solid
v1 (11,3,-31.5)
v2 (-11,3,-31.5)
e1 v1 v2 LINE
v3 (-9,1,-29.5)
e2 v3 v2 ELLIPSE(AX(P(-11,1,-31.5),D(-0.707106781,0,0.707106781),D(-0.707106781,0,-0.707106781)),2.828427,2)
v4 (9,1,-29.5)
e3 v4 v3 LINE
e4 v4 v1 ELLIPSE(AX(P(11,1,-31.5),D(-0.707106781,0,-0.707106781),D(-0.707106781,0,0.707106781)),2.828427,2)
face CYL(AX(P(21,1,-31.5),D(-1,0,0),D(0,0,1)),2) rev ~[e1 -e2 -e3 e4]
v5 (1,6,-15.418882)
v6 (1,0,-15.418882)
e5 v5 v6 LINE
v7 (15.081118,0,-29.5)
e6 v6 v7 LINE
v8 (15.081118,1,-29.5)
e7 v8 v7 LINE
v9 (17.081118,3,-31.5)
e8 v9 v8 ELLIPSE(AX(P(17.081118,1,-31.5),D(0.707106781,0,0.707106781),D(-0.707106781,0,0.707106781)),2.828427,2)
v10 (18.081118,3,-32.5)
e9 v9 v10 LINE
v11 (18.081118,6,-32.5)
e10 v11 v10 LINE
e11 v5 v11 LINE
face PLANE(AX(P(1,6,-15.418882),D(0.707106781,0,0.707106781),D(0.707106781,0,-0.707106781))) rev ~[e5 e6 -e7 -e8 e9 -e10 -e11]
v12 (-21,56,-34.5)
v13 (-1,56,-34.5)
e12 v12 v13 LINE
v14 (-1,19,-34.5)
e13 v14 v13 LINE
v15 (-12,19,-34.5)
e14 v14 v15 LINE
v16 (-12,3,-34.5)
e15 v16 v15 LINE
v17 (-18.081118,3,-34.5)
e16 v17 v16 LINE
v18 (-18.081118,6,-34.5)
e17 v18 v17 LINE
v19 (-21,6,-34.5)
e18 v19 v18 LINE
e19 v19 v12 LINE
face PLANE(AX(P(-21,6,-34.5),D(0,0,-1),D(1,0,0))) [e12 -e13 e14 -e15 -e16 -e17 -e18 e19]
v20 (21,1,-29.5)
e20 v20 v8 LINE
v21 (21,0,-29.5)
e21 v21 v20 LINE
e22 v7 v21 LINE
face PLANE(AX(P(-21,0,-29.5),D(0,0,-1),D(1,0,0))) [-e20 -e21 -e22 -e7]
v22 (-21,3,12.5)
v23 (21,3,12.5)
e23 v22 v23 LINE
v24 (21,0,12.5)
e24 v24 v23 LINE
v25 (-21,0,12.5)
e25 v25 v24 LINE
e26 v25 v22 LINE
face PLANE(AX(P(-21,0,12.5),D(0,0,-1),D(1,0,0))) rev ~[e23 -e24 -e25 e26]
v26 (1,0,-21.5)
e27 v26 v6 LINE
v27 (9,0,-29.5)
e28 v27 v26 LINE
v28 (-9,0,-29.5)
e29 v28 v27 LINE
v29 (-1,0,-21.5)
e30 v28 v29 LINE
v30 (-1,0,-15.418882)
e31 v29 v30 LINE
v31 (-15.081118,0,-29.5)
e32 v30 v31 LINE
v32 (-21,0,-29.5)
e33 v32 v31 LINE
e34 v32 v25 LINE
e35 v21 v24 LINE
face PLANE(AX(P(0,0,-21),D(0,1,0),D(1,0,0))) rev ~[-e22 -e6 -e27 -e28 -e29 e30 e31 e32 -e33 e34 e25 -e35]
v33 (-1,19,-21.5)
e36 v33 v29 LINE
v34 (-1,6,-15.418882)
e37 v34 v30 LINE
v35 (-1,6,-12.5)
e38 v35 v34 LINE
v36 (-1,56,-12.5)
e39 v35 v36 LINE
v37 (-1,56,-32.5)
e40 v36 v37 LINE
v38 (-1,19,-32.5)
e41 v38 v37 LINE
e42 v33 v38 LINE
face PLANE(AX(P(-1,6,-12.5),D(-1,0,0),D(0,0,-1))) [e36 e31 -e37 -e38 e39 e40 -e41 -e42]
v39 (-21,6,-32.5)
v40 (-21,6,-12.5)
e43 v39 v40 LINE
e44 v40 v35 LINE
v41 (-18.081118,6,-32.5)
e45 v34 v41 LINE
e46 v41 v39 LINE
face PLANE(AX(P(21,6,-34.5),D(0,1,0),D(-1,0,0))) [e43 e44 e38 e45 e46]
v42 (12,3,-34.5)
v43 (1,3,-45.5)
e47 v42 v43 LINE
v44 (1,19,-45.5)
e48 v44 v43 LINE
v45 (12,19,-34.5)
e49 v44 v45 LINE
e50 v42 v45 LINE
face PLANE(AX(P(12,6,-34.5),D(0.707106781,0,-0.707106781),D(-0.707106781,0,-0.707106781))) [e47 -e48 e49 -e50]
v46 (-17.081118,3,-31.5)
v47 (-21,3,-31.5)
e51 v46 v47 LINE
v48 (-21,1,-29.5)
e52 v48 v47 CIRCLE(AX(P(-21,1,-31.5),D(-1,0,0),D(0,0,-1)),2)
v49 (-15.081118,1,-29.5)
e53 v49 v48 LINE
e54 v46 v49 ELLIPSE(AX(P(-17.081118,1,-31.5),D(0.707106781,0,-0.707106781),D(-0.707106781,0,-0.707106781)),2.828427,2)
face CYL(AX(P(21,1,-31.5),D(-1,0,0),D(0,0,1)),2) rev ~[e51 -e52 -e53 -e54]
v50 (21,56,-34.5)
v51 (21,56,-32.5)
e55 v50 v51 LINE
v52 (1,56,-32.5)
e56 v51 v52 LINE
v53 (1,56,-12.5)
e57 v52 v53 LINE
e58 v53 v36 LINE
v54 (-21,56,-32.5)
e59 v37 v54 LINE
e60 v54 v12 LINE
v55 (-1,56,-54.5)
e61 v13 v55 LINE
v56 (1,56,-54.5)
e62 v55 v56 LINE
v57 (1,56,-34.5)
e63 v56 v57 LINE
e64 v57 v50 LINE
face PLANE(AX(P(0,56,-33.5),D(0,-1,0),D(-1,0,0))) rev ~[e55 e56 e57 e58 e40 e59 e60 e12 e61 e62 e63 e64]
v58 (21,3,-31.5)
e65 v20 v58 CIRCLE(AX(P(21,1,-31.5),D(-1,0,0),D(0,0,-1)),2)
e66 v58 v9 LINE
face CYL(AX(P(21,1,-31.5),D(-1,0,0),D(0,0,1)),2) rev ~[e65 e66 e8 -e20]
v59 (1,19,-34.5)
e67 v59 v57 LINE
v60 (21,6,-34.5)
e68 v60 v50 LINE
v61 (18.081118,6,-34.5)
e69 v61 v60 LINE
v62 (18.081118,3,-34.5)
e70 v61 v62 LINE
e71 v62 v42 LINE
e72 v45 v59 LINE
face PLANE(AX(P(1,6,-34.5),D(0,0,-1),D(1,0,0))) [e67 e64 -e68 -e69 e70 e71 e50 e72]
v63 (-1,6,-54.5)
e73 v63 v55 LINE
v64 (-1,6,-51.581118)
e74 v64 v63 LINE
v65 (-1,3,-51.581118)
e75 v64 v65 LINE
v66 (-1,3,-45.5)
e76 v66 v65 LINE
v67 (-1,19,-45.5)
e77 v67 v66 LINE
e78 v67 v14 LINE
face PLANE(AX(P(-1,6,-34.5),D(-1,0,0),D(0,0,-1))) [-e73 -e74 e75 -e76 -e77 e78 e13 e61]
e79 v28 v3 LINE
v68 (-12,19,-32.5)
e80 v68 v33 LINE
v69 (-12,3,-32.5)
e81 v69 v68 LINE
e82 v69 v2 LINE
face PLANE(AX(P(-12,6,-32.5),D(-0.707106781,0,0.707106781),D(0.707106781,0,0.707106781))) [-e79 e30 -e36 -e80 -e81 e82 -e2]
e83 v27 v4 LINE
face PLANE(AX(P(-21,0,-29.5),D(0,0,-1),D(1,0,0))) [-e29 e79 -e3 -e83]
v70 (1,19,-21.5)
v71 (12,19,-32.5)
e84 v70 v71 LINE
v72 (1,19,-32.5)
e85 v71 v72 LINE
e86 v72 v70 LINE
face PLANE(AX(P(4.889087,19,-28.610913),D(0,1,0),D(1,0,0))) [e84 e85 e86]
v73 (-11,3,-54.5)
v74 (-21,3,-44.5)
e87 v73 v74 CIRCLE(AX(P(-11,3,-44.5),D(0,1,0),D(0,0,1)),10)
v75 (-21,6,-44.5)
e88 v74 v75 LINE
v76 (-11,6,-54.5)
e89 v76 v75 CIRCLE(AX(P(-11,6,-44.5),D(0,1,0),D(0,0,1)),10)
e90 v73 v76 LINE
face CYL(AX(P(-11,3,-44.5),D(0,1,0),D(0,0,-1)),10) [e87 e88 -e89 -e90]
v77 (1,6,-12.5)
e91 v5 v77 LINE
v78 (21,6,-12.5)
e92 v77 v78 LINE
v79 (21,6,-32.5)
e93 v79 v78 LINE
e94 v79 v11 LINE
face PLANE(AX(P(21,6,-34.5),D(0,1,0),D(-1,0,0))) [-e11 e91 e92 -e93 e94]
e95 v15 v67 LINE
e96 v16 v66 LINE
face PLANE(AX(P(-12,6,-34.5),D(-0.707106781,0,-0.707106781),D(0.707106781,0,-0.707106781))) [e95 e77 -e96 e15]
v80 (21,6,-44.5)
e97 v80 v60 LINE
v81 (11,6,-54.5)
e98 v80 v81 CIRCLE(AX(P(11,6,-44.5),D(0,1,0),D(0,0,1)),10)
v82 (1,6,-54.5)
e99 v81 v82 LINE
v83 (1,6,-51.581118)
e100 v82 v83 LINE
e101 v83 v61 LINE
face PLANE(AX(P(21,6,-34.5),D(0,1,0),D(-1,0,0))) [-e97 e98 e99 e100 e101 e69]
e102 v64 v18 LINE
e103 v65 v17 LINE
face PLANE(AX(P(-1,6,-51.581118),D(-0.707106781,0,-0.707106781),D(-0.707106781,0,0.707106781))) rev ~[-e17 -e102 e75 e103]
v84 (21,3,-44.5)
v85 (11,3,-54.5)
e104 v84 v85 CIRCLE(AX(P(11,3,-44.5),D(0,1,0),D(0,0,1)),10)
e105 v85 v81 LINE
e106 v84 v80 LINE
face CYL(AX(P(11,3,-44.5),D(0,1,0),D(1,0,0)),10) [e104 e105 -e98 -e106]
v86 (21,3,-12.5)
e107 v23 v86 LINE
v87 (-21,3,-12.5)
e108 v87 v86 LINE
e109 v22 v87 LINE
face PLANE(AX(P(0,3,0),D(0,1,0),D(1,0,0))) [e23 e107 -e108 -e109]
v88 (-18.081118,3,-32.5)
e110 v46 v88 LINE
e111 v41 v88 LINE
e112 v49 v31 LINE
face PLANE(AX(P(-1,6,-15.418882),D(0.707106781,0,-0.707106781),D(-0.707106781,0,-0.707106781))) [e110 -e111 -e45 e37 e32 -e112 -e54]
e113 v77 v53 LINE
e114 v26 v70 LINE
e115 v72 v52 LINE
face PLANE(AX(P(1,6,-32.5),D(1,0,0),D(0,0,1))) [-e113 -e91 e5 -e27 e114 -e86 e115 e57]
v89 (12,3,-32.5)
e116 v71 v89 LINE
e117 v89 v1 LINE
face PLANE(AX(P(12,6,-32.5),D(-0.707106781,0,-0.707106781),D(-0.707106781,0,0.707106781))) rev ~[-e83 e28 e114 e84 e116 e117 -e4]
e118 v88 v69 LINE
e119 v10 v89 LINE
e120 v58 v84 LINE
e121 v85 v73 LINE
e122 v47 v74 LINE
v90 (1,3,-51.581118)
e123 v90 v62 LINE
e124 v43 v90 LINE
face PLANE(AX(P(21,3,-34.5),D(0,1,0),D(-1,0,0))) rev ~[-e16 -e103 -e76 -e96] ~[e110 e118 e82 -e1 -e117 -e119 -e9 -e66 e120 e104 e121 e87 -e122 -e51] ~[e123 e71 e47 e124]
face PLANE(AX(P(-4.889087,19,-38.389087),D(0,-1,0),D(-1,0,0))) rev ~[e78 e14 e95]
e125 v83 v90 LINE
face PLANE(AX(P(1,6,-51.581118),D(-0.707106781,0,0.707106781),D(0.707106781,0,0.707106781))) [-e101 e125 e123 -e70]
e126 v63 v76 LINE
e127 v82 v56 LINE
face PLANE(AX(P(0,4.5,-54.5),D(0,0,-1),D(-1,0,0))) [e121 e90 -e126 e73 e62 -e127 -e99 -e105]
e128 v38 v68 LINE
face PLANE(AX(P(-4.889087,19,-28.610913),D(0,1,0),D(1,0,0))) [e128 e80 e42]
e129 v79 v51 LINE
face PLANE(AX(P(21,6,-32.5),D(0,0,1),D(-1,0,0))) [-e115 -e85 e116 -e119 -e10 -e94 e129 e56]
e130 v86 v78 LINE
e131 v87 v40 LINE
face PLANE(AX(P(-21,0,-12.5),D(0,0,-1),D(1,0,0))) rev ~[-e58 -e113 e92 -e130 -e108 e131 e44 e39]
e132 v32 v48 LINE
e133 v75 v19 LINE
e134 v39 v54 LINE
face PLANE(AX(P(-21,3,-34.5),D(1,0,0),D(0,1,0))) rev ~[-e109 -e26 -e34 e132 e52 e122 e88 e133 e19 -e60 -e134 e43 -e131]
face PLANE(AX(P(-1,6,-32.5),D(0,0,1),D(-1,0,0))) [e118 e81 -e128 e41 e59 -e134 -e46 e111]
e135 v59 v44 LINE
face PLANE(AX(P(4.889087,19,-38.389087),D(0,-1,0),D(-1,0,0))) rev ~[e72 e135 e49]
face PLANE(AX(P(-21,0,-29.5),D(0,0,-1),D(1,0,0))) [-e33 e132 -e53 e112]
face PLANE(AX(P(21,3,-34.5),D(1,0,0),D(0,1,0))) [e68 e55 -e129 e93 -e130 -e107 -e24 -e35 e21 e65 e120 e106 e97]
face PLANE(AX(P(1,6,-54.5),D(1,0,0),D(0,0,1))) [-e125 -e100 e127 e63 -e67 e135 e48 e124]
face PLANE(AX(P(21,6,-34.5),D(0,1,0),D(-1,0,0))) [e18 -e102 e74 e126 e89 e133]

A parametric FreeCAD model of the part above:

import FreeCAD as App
import Part
import Sketcher
Q = App.Units.Quantity


def edges_at(feature, points):
    """Names of the edges that pass closest to the given points."""
    edges = feature.Shape.Edges
    near = lambda p: min(range(len(edges)), key=lambda i: edges[i].distToShape(Part.Vertex(*p))[0])
    return sorted({f"Edge{near(p) + 1}" for p in points})


def add_polygon(sketch, points):
    """Adds a closed chain of lines whose ends are joined by coincident constraints."""
    first, n = sketch.GeometryCount, len(points)
    for a, b in zip(points, points[1:] + points[:1]):
        sketch.addGeometry(Part.LineSegment(App.Vector(*a, 0), App.Vector(*b, 0)), False)
    for i in range(n):
        sketch.addConstraint(Sketcher.Constraint("Coincident", first + i, 2, first + (i + 1) % n, 1))

doc = App.newDocument("Part")
body = doc.addObject("PartDesign::Body", "Body")

# Sketch on XZ plane
sketch1 = body.newObject("Sketcher::SketchObject", "Sketch")
sketch1.AttachmentSupport = (doc.getObject("XZ_Plane"), [""])
sketch1.MapMode = "FlatFace"
add_polygon(sketch1, [(-21, -12), (-21, 12), (21, 12), (21, -12)])  # lines 0-3
sketch1.addConstraint([
    Sketcher.Constraint("Vertical", 0),
    Sketcher.Constraint("Horizontal", 1),
    Sketcher.Constraint("Vertical", 2),
    Sketcher.Constraint("Horizontal", 3),
    Sketcher.Constraint("Symmetric", 0, 2, 2, 2, -1, 1),
    Sketcher.Constraint("DistanceX", 1, 1, 1, 2, Q("42 mm")),
    Sketcher.Constraint("DistanceY", 0, 1, 0, 2, Q("25 mm")),
])
pad1 = body.newObject("PartDesign::Pad", "Pad")
pad1.Profile = sketch1
pad1.Length = 3
pad1.Reversed = True

# Sketch on XZ plane
sketch2 = body.newObject("Sketcher::SketchObject", "Sketch001")
sketch2.AttachmentSupport = (doc.getObject("XZ_Plane"), [""])
sketch2.MapMode = "FlatFace"
add_polygon(sketch2, [(-21, -30), (-21, -12), (21, -12), (21, -30)])  # lines 0-3
sketch2.addConstraint([
    Sketcher.Constraint("Vertical", 0),
    Sketcher.Constraint("Horizontal", 1),
    Sketcher.Constraint("Vertical", 2),
    Sketcher.Constraint("Horizontal", 3),
    Sketcher.Constraint("DistanceX", 1, 1, 1, 2, Q("42 mm")),
    Sketcher.Constraint("DistanceY", 0, 1, 0, 2, Q("17 mm")),
    Sketcher.Constraint("DistanceX", 0, 2, -1, 1, Q("21 mm")),
    Sketcher.Constraint("DistanceY", 0, 2, -1, 1, Q("12.5 mm")),
])
pad2 = body.newObject("PartDesign::Pad", "Pad001")
pad2.Profile = sketch2
pad2.Length = 6
pad2.Reversed = True

# Sketch on XY plane
sketch3 = body.newObject("Sketcher::SketchObject", "Sketch002")
sketch3.AttachmentSupport = (doc.getObject("XY_Plane"), [""])
sketch3.MapMode = "FlatFace"
sketch3.AttachmentOffset = App.Placement(App.Vector(0, 0, -29.5), App.Rotation())
add_polygon(sketch3, [(21, 6), (21, 3), (-21, 3), (-21, 6)])  # lines 0-3
sketch3.addConstraint([
    Sketcher.Constraint("Vertical", 0),
    Sketcher.Constraint("Horizontal", 1),
    Sketcher.Constraint("Vertical", 2),
    Sketcher.Constraint("Horizontal", 3),
    Sketcher.Constraint("DistanceX", 1, 2, 1, 1, Q("42 mm")),
    Sketcher.Constraint("DistanceY", 0, 2, 0, 1, Q("3 mm")),
    Sketcher.Constraint("DistanceX", -1, 1, 0, 2, Q("21 mm")),
    Sketcher.Constraint("DistanceY", -1, 1, 0, 2, Q("3 mm")),
])
pad3 = body.newObject("PartDesign::Pad", "Pad002")
pad3.Profile = sketch3
pad3.Length = 3
pad3.Reversed = True
doc.recompute()

fillet = body.newObject("PartDesign::Fillet", "Fillet")
fillet.Base = (pad3, edges_at(pad3, [(0, 3, -29.5)]))
fillet.Radius = 2

# Sketch on XY plane
sketch4 = body.newObject("Sketcher::SketchObject", "Sketch003")
sketch4.AttachmentSupport = (doc.getObject("XY_Plane"), [""])
sketch4.MapMode = "FlatFace"
sketch4.AttachmentOffset = App.Placement(App.Vector(0, 0, -32.5), App.Rotation())
add_polygon(sketch4, [(21, 6), (21, 3), (-21, 3), (-21, 6)])  # lines 0-3
sketch4.addConstraint([
    Sketcher.Constraint("Vertical", 0),
    Sketcher.Constraint("Horizontal", 1),
    Sketcher.Constraint("Vertical", 2),
    Sketcher.Constraint("Horizontal", 3),
    Sketcher.Constraint("DistanceX", 1, 2, 1, 1, Q("42 mm")),
    Sketcher.Constraint("DistanceY", 0, 2, 0, 1, Q("3 mm")),
    Sketcher.Constraint("DistanceX", -1, 1, 0, 2, Q("21 mm")),
    Sketcher.Constraint("DistanceY", -1, 1, 0, 2, Q("3 mm")),
])
pad4 = body.newObject("PartDesign::Pad", "Pad003")
pad4.Profile = sketch4
pad4.Length = 2
pad4.Reversed = True

# Sketch on XY plane
sketch5 = body.newObject("Sketcher::SketchObject", "Sketch004")
sketch5.AttachmentSupport = (doc.getObject("XY_Plane"), [""])
sketch5.MapMode = "FlatFace"
sketch5.AttachmentOffset = App.Placement(App.Vector(0, 0, -34.5), App.Rotation())
add_polygon(sketch5, [(21, 6), (21, 3), (-21, 3), (-21, 6)])  # lines 0-3
sketch5.addConstraint([
    Sketcher.Constraint("Vertical", 0),
    Sketcher.Constraint("Horizontal", 1),
    Sketcher.Constraint("Vertical", 2),
    Sketcher.Constraint("Horizontal", 3),
    Sketcher.Constraint("DistanceX", 1, 2, 1, 1, Q("42 mm")),
    Sketcher.Constraint("DistanceY", 0, 2, 0, 1, Q("3 mm")),
    Sketcher.Constraint("DistanceX", -1, 1, 0, 2, Q("21 mm")),
    Sketcher.Constraint("DistanceY", -1, 1, 0, 2, Q("3 mm")),
])
pad5 = body.newObject("PartDesign::Pad", "Pad004")
pad5.Profile = sketch5
pad5.Length = 20
pad5.Reversed = True

# Sketch on XZ plane
sketch6 = body.newObject("Sketcher::SketchObject", "Sketch005")
sketch6.AttachmentSupport = (doc.getObject("XZ_Plane"), [""])
sketch6.MapMode = "FlatFace"
sketch6.AttachmentOffset = App.Placement(App.Vector(0, 0, -6), App.Rotation())
add_polygon(sketch6, [(-1, -34.5), (-21, -34.5), (-21, -32.5), (-1, -32.5), (-1, -12.5), (1, -12.5), (1, -32.5), (21, -32.5), (21, -34.5), (1, -34.5), (1, -54.5), (-1, -54.5)])  # lines 0-11
sketch6.addConstraint([
    Sketcher.Constraint("Horizontal", 0),
    Sketcher.Constraint("Vertical", 1),
    Sketcher.Constraint("Horizontal", 2),
    Sketcher.Constraint("Vertical", 3),
    Sketcher.Constraint("Horizontal", 4),
    Sketcher.Constraint("Vertical", 5),
    Sketcher.Constraint("Horizontal", 6),
    Sketcher.Constraint("Vertical", 7),
    Sketcher.Constraint("Horizontal", 8),
    Sketcher.Constraint("Vertical", 9),
    Sketcher.Constraint("Horizontal", 10),
    Sketcher.Constraint("Vertical", 11),
    Sketcher.Constraint("Symmetric", 2, 2, 5, 2, -2),
    Sketcher.Constraint("Symmetric", 0, 2, 7, 2, -2),
    Sketcher.Constraint("Vertical", 5, 2, 8, 2),
    Sketcher.Constraint("Vertical", 3, 2, 10, 2),
    Sketcher.Constraint("Equal", 10, 1),
    Sketcher.Constraint("Equal", 8, 3),
    Sketcher.Constraint("Equal", 5, 9),
    Sketcher.Constraint("DistanceX", 0, 2, 0, 1, Q("20 mm")),
    Sketcher.Constraint("DistanceX", 4, 1, 4, 2, Q("2 mm")),
    Sketcher.Constraint("DistanceY", 0, 2, -1, 1, Q("34.5 mm")),
])
pad6 = body.newObject("PartDesign::Pad", "Pad005")
pad6.Profile = sketch6
pad6.Length = 50
pad6.Reversed = True

# Sketch on XZ plane
sketch7 = body.newObject("Sketcher::SketchObject", "Sketch006")
sketch7.AttachmentSupport = (doc.getObject("XZ_Plane"), [""])
sketch7.MapMode = "FlatFace"
sketch7.AttachmentOffset = App.Placement(App.Vector(0, 0, -6), App.Rotation())
add_polygon(sketch7, [(-1, -46), (-12, -34), (-1, -34)])  # lines 0-2
add_polygon(sketch7, [(1, -46), (1, -34), (12, -34)])  # lines 3-5
add_polygon(sketch7, [(12, -32), (1, -32), (1, -22)])  # lines 6-8
add_polygon(sketch7, [(-1, -22), (-1, -32), (-12, -32)])  # lines 9-11
sketch7.addConstraint([
    Sketcher.Constraint("Horizontal", 1),
    Sketcher.Constraint("Vertical", 2),
    Sketcher.Constraint("Vertical", 3),
    Sketcher.Constraint("Horizontal", 4),
    Sketcher.Constraint("Horizontal", 6),
    Sketcher.Constraint("Vertical", 7),
    Sketcher.Constraint("Vertical", 9),
    Sketcher.Constraint("Horizontal", 10),
    Sketcher.Constraint("Symmetric", 1, 2, 3, 2, -2),
    Sketcher.Constraint("Symmetric", 6, 2, 9, 2, -2),
    Sketcher.Constraint("Perpendicular", 0, 5),
    Sketcher.Constraint("Perpendicular", 5, 8),
    Sketcher.Constraint("Perpendicular", 8, 11),
    Sketcher.Constraint("Horizontal", 2, 2, 5, 2),
    Sketcher.Constraint("Horizontal", 7, 2, 11, 2),
    Sketcher.Constraint("Vertical", 5, 2, 6, 2),
    Sketcher.Constraint("Vertical", 4, 2, 8, 2),
    Sketcher.Constraint("Vertical", 0, 2, 10, 2),
    Sketcher.Constraint("DistanceX", 1, 1, 1, 2, Q("11 mm")),
    Sketcher.Constraint("DistanceX", 0, 2, -1, 1, Q("12 mm")),
    Sketcher.Constraint("DistanceY", 3, 2, 6, 2, Q("2 mm")),
    Sketcher.Constraint("DistanceY", 0, 2, -1, 1, Q("34.5 mm")),
])
pad7 = body.newObject("PartDesign::Pad", "Pad006")
pad7.Profile = sketch7
pad7.Length = 13
pad7.Reversed = True

# Sketch on XZ plane
sketch8 = body.newObject("Sketcher::SketchObject", "Sketch007")
sketch8.AttachmentSupport = (doc.getObject("XZ_Plane"), [""])
sketch8.MapMode = "FlatFace"
sketch8.AttachmentOffset = App.Placement(App.Vector(0, 0, -6), App.Rotation())
add_polygon(sketch8, [(1, -52), (1, -46), (12, -34), (18, -34)])  # lines 0-3
add_polygon(sketch8, [(-1, -46), (-1, -52), (-18, -34), (-12, -34)])  # lines 4-7
add_polygon(sketch8, [(-1, -22), (-12, -32), (-18, -32), (-1, -15)])  # lines 8-11
add_polygon(sketch8, [(1, -22), (1, -15), (18, -32), (12, -32)])  # lines 12-15
sketch8.addConstraint([
    Sketcher.Constraint("Vertical", 0),
    Sketcher.Constraint("Horizontal", 2),
    Sketcher.Constraint("Vertical", 4),
    Sketcher.Constraint("Horizontal", 6),
    Sketcher.Constraint("Horizontal", 9),
    Sketcher.Constraint("Vertical", 11),
    Sketcher.Constraint("Vertical", 12),
    Sketcher.Constraint("Horizontal", 14),
    Sketcher.Constraint("Symmetric", 3, 2, 4, 2, -2),
    Sketcher.Constraint("Symmetric", 2, 2, 5, 2, -2),
    Sketcher.Constraint("Symmetric", 10, 2, 12, 2, -2),
    Sketcher.Constraint("Symmetric", 9, 2, 13, 2, -2),
    Sketcher.Constraint("Parallel", 1, 3),
    Sketcher.Constraint("Perpendicular", 3, 5),
    Sketcher.Constraint("Parallel", 5, 7),
    Sketcher.Constraint("Perpendicular", 7, 8),
    Sketcher.Constraint("Parallel", 8, 10),
    Sketcher.Constraint("Parallel", 13, 15),
    Sketcher.Constraint("Horizontal", 0, 2, 7, 2),
    Sketcher.Constraint("Horizontal", 11, 2, 15, 2),
    Sketcher.Constraint("Vertical", 6, 2, 8, 2),
    Sketcher.Constraint("Vertical", 5, 2, 9, 2),
    Sketcher.Constraint("Vertical", 7, 2, 10, 2),
    Sketcher.Constraint("DistanceX", -1, 1, 0, 2, Q("1 mm")),
    Sketcher.Constraint("DistanceX", -1, 1, 1, 2, Q("12 mm")),
    Sketcher.Constraint("DistanceY", 6, 2, 8, 2, Q("2 mm")),
    Sketcher.Constraint("DistanceY", 0, 2, -1, 1, Q("45.5 mm")),
    Sketcher.Constraint("DistanceX", 2, 1, 2, 2, Q("6.081118 mm")),
])
pocket1 = body.newObject("PartDesign::Pocket", "Pocket")
pocket1.Profile = sketch8
pocket1.Length = 13
pocket1.Reversed = True
doc.recompute()

fillet2 = body.newObject("PartDesign::Fillet", "Fillet001")
fillet2.Base = (pocket1, edges_at(pocket1, [(21, 4.5, -54.5), (-21, 4.5, -54.5)]))
fillet2.Radius = 10

doc.recompute()
